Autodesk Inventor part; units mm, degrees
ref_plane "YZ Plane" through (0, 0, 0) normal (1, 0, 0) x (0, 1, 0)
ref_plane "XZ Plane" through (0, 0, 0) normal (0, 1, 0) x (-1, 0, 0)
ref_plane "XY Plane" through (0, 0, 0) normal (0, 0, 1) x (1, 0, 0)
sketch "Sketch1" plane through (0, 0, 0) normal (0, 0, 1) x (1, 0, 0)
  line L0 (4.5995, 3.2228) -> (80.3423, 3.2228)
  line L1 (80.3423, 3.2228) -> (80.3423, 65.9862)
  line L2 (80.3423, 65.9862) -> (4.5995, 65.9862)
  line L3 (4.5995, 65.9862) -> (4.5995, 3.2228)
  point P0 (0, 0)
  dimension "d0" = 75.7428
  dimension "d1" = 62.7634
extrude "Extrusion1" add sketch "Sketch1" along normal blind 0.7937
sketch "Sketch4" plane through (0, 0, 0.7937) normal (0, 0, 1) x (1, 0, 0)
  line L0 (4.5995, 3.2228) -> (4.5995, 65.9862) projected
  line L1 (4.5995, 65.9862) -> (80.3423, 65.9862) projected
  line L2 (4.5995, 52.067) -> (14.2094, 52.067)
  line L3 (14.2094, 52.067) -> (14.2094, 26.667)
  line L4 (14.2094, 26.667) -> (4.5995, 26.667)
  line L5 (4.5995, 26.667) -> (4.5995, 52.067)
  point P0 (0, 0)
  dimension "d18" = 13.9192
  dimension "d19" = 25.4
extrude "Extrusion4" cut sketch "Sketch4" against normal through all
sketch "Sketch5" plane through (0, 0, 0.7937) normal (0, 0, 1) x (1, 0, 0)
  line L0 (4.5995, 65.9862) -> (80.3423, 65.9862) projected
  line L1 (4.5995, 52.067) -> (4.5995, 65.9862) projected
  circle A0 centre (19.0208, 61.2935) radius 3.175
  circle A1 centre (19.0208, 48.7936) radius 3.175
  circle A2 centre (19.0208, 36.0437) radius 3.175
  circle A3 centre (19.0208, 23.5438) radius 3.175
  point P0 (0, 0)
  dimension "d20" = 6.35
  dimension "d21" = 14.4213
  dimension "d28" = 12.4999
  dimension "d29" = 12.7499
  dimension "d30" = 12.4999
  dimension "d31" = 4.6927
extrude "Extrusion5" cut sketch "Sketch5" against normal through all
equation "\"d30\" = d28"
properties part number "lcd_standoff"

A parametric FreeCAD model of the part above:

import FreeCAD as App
import Part
import Sketcher
from FreeCAD import Vector
Q = App.Units.Quantity

doc = App.newDocument("Part")
body = doc.addObject("PartDesign::Body", "Body")

sketch1 = body.newObject("Sketcher::SketchObject", "Sketch")
sketch1.AttachmentSupport = (doc.getObject("XY_Plane"), [""])
sketch1.MapMode = "FlatFace"
sketch1.addGeometry([
    Part.LineSegment(Vector(5, 66, 0), Vector(5, 3, 0)),
    Part.LineSegment(Vector(5, 3, 0), Vector(80, 3, 0)),
    Part.LineSegment(Vector(80, 3, 0), Vector(80, 66, 0)),
    Part.LineSegment(Vector(80, 66, 0), Vector(5, 66, 0)),
], False)
sketch1.addConstraint([
    Sketcher.Constraint("Coincident", 0, 2, 1, 1),
    Sketcher.Constraint("Coincident", 1, 2, 2, 1),
    Sketcher.Constraint("Coincident", 2, 2, 3, 1),
    Sketcher.Constraint("Coincident", 3, 2, 0, 1),
    Sketcher.Constraint("Vertical", 0),
    Sketcher.Constraint("Horizontal", 1),
    Sketcher.Constraint("Vertical", 2),
    Sketcher.Constraint("Horizontal", 3),
    Sketcher.Constraint("DistanceX", 1, 1, 1, 2, Q("2.982 in")),
    Sketcher.Constraint("DistanceY", 0, 2, 0, 1, Q("2.471 in")),
    Sketcher.Constraint("DistanceX", -1, 1, 0, 2, Q("4.5995 mm")),
    Sketcher.Constraint("DistanceY", -1, 1, 0, 2, Q("3.2228 mm")),
])
pad1 = body.newObject("PartDesign::Pad", "Pad")
pad1.Profile = sketch1
pad1.Length = Q("0.031248 in")

sketch2 = body.newObject("Sketcher::SketchObject", "Sketch001")
sketch2.AttachmentSupport = (doc.getObject("XY_Plane"), [""])
sketch2.MapMode = "FlatFace"
sketch2.AttachmentOffset = App.Placement(Vector(0, 0, 0.031248 * 25.4), App.Rotation())
sketch2.addGeometry([
    Part.LineSegment(Vector(5, 52, 0), Vector(5, 27, 0)),
    Part.LineSegment(Vector(5, 27, 0), Vector(14, 27, 0)),
    Part.LineSegment(Vector(14, 27, 0), Vector(14, 52, 0)),
    Part.LineSegment(Vector(14, 52, 0), Vector(5, 52, 0)),
], False)
sketch2.addConstraint([
    Sketcher.Constraint("Coincident", 0, 2, 1, 1),
    Sketcher.Constraint("Coincident", 1, 2, 2, 1),
    Sketcher.Constraint("Coincident", 2, 2, 3, 1),
    Sketcher.Constraint("Coincident", 3, 2, 0, 1),
    Sketcher.Constraint("Vertical", 0),
    Sketcher.Constraint("Horizontal", 1),
    Sketcher.Constraint("Vertical", 2),
    Sketcher.Constraint("Horizontal", 3),
    Sketcher.Constraint("DistanceY", 0, 2, 0, 1, Q("1 in")),
    Sketcher.Constraint("DistanceX", 1, 1, 1, 2, Q("9.61 mm")),
    Sketcher.Constraint("DistanceX", -1, 1, 0, 2, Q("4.5995 mm")),
    Sketcher.Constraint("DistanceY", -1, 1, 0, 2, Q("26.667 mm")),
])
pocket1 = body.newObject("PartDesign::Pocket", "Pocket")
pocket1.Profile = sketch2
pocket1.Type = "ThroughAll"

sketch3 = body.newObject("Sketcher::SketchObject", "Sketch002")
sketch3.AttachmentSupport = (doc.getObject("XY_Plane"), [""])
sketch3.MapMode = "FlatFace"
sketch3.AttachmentOffset = App.Placement(Vector(0, 0, 0.031248 * 25.4), App.Rotation())
sketch3.addGeometry([
    Part.Circle(Vector(19, 61.3, 0), Vector(0, 0, 1), 3.2),
    Part.Circle(Vector(19, 48.8, 0), Vector(0, 0, 1), 3.2),
    Part.Circle(Vector(19, 36, 0), Vector(0, 0, 1), 3.2),
    Part.Circle(Vector(19, 23.5, 0), Vector(0, 0, 1), 3.2),
], False)
sketch3.addConstraint([
    Sketcher.Constraint("Equal", 0, 1),
    Sketcher.Constraint("Equal", 1, 2),
    Sketcher.Constraint("Equal", 2, 3),
    Sketcher.Constraint("Vertical", 0, 3, 1, 3),
    Sketcher.Constraint("Vertical", 1, 3, 2, 3),
    Sketcher.Constraint("Vertical", 2, 3, 3, 3),
    Sketcher.Constraint("Diameter", 0, Q("0.25 in")),
    Sketcher.Constraint("DistanceY", 1, 3, 0, 3, Q("12.5 mm")),
    Sketcher.Constraint("DistanceY", 2, 3, 1, 3, Q("12.75 mm")),
    Sketcher.Constraint("DistanceY", 3, 3, 2, 3, Q("12.5 mm")),
    Sketcher.Constraint("DistanceY", -1, 1, 1, 3, Q("1.921 in")),
    Sketcher.Constraint("DistanceX", -1, 1, 0, 3, Q("19.0208 mm")),
])
pocket2 = body.newObject("PartDesign::Pocket", "Pocket001")
pocket2.Profile = sketch3
pocket2.Type = "ThroughAll"

doc.recompute()
